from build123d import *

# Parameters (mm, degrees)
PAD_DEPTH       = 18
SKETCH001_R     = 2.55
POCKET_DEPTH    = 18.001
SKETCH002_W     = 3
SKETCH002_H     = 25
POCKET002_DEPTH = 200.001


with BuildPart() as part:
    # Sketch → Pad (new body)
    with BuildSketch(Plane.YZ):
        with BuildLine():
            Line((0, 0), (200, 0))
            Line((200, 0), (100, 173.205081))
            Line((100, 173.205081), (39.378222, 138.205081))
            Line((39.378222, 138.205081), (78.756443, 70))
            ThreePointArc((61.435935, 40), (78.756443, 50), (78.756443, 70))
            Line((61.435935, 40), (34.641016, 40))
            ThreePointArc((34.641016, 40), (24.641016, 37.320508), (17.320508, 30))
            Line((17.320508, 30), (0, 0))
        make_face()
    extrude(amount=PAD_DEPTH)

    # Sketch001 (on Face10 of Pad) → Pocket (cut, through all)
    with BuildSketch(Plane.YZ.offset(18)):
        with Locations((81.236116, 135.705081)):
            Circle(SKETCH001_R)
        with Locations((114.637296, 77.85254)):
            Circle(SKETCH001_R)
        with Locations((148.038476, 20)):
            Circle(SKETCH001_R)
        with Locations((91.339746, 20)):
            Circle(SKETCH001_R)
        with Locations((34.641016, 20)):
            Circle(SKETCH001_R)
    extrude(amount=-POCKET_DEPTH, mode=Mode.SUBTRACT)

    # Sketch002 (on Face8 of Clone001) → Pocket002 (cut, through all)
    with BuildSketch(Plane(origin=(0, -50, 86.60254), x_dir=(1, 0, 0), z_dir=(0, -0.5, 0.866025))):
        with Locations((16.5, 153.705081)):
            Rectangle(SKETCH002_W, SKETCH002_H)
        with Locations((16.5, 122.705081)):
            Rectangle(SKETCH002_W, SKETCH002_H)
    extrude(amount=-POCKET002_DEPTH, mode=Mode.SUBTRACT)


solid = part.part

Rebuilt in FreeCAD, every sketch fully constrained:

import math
import FreeCAD as App
import Part
import Sketcher
Q = App.Units.Quantity


def add_polygon(sketch, points):
    """Adds a closed chain of lines whose ends are joined by coincident constraints."""
    first, n = sketch.GeometryCount, len(points)
    for a, b in zip(points, points[1:] + points[:1]):
        sketch.addGeometry(Part.LineSegment(App.Vector(*a, 0), App.Vector(*b, 0)), False)
    for i in range(n):
        sketch.addConstraint(Sketcher.Constraint("Coincident", first + i, 2, first + (i + 1) % n, 1))

doc = App.newDocument("Part")
body = doc.addObject("PartDesign::Body", "Body")

# Sketch on YZ plane
sketch1 = doc.addObject("Sketcher::SketchObject", "Sketch")
body.addObject(sketch1)
sketch1.AttachmentSupport = (doc.YZ_Plane, [""])
sketch1.MapMode = "FlatFace"
sketch1.addGeometry(Part.LineSegment(App.Vector(0, 0, 0), App.Vector(200, 0, 0)), False)
sketch1.addGeometry(Part.LineSegment(App.Vector(200, 0, 0), App.Vector(100, 173.205081, 0)), False)
sketch1.addGeometry(Part.LineSegment(App.Vector(100, 173.205081, 0), App.Vector(39.378222, 138.205081, 0)), False)
sketch1.addGeometry(Part.LineSegment(App.Vector(39.378222, 138.205081, 0), App.Vector(78.756443, 70, 0)), False)
sketch1.addGeometry(Part.ArcOfCircle(Part.Circle(App.Vector(61.435935, 60, 0), App.Vector(0, 0, 1), 20), math.radians(-90), math.radians(30)), False)
sketch1.addGeometry(Part.LineSegment(App.Vector(61.435935, 40, 0), App.Vector(34.641016, 40, 0)), False)
sketch1.addGeometry(Part.ArcOfCircle(Part.Circle(App.Vector(34.641016, 20, 0), App.Vector(0, 0, 1), 20), math.radians(90.000001), math.radians(150)), False)
sketch1.addGeometry(Part.LineSegment(App.Vector(17.320508, 30, 0), App.Vector(0, 0, 0)), False)
sketch1.addConstraint(Sketcher.Constraint("Coincident", 0, 2, 1, 1))
sketch1.addConstraint(Sketcher.Constraint("Coincident", 1, 2, 2, 1))
sketch1.addConstraint(Sketcher.Constraint("Coincident", 2, 2, 3, 1))
sketch1.addConstraint(Sketcher.Constraint("Tangent", 3, 2, 4, 2))
sketch1.addConstraint(Sketcher.Constraint("Tangent", 4, 1, 5, 1))
sketch1.addConstraint(Sketcher.Constraint("Tangent", 5, 2, 6, 1))
sketch1.addConstraint(Sketcher.Constraint("Tangent", 6, 2, 7, 1))
sketch1.addConstraint(Sketcher.Constraint("Coincident", 7, 2, 0, 1))
sketch1.addConstraint(Sketcher.Constraint("Horizontal", 0))
sketch1.addConstraint(Sketcher.Constraint("Horizontal", 5))
sketch1.addConstraint(Sketcher.Constraint("Coincident", 7, 2, -1, 1))
sketch1.addConstraint(Sketcher.Constraint("Equal", 4, 6))
sketch1.addConstraint(Sketcher.Constraint("Perpendicular", 1, 2))
sketch1.addConstraint(Sketcher.Constraint("Perpendicular", 2, 3))
sketch1.addConstraint(Sketcher.Constraint("Radius", 4, 20.0))
sketch1.addConstraint(Sketcher.Constraint("DistanceX", 0, 1, 0, 2, 200.0))
sketch1.addConstraint(Sketcher.Constraint("Angle", 1, Q("120 deg")))
sketch1.addConstraint(Sketcher.Constraint("Angle", 7, Q("-120 deg")))
sketch1.addConstraint(Sketcher.Constraint("Distance", 1, 200.0))
sketch1.addConstraint(Sketcher.Constraint("Distance", 2, 70.0))
sketch1.addConstraint(Sketcher.Constraint("DistanceY", -1, 1, 4, 3, 60.0))
pad1 = doc.addObject("PartDesign::Pad", "Pad")
body.addObject(pad1)
pad1.Profile = sketch1
pad1.Length = 18

# Sketch on YZ plane
sketch2 = doc.addObject("Sketcher::SketchObject", "Sketch001")
body.addObject(sketch2)
sketch2.AttachmentSupport = (doc.YZ_Plane, [""])
sketch2.MapMode = "FlatFace"
sketch2.AttachmentOffset = App.Placement(App.Vector(0, 0, 18), App.Rotation())
sketch2.addGeometry(Part.Circle(App.Vector(81.236116, 135.705081, 0), App.Vector(0, 0, 1), 2.55), False)
sketch2.addGeometry(Part.Circle(App.Vector(114.637296, 77.85254, 0), App.Vector(0, 0, 1), 2.55), False)
sketch2.addGeometry(Part.Circle(App.Vector(148.038476, 20, 0), App.Vector(0, 0, 1), 2.55), False)
sketch2.addGeometry(Part.Circle(App.Vector(91.339746, 20, 0), App.Vector(0, 0, 1), 2.55), False)
sketch2.addGeometry(Part.Circle(App.Vector(34.641016, 20, 0), App.Vector(0, 0, 1), 2.55), False)
sketch2.addConstraint(Sketcher.Constraint("Equal", 0, 1))
sketch2.addConstraint(Sketcher.Constraint("Equal", 1, 2))
sketch2.addConstraint(Sketcher.Constraint("Equal", 2, 3))
sketch2.addConstraint(Sketcher.Constraint("Equal", 3, 4))
sketch2.addConstraint(Sketcher.Constraint("Horizontal", 2, 3, 3, 3))
sketch2.addConstraint(Sketcher.Constraint("Horizontal", 3, 3, 4, 3))
sketch2.addConstraint(Sketcher.Constraint("Diameter", 0, 5.1))
sketch2.addConstraint(Sketcher.Constraint("DistanceY", -1, 1, 2, 3, 20.0))
sketch2.addConstraint(Sketcher.Constraint("DistanceX", 4, 3, 0, 3, 46.5951))
sketch2.addConstraint(Sketcher.Constraint("DistanceY", -1, 1, 0, 3, 135.705081))
sketch2.addConstraint(Sketcher.Constraint("DistanceY", -1, 1, 1, 3, 77.85254))
sketch2.addConstraint(Sketcher.Constraint("DistanceX", 0, 3, 1, 3, 33.40118))
sketch2.addConstraint(Sketcher.Constraint("DistanceX", 1, 3, 2, 3, 33.40118))
sketch2.addConstraint(Sketcher.Constraint("DistanceX", 3, 3, 2, 3, 56.69873))
sketch2.addConstraint(Sketcher.Constraint("DistanceX", -1, 1, 0, 3, 81.236116))
pocket1 = doc.addObject("PartDesign::Pocket", "Pocket")
body.addObject(pocket1)
pocket1.Profile = sketch2
pocket1.Type = "ThroughAll"

# Sketch on an angled plane
sketch3 = doc.addObject("Sketcher::SketchObject", "Sketch002")
body.addObject(sketch3)
sketch3.Placement = App.Placement(App.Vector(0, -50, 86.60254), App.Rotation(App.Vector(1, 0, 0), App.Vector(0, 0.866025303, 0.500000175), App.Vector(0, -0.500000175, 0.866025303), "ZXY"))
add_polygon(sketch3, [(15, 166.205081), (15, 141.205081), (18, 141.205081), (18, 166.205081)])  # lines 0-3
add_polygon(sketch3, [(15, 135.205081), (15, 110.205081), (18, 110.205081), (18, 135.205081)])  # lines 4-7
sketch3.addConstraint(Sketcher.Constraint("Vertical", 0))
sketch3.addConstraint(Sketcher.Constraint("Horizontal", 1))
sketch3.addConstraint(Sketcher.Constraint("Vertical", 2))
sketch3.addConstraint(Sketcher.Constraint("Horizontal", 3))
sketch3.addConstraint(Sketcher.Constraint("Vertical", 4))
sketch3.addConstraint(Sketcher.Constraint("Horizontal", 5))
sketch3.addConstraint(Sketcher.Constraint("Vertical", 6))
sketch3.addConstraint(Sketcher.Constraint("Horizontal", 7))
sketch3.addConstraint(Sketcher.Constraint("Vertical", 3, 2, 4, 2))
sketch3.addConstraint(Sketcher.Constraint("Vertical", 2, 2, 5, 2))
sketch3.addConstraint(Sketcher.Constraint("Equal", 2, 4))
sketch3.addConstraint(Sketcher.Constraint("DistanceX", 1, 1, 1, 2, 3.0))
sketch3.addConstraint(Sketcher.Constraint("DistanceY", 0, 2, 0, 1, 25.0))
sketch3.addConstraint(Sketcher.Constraint("DistanceX", -1, 1, 0, 2, 15.0))
sketch3.addConstraint(Sketcher.Constraint("DistanceY", 4, 2, 0, 2, 31.0))
sketch3.addConstraint(Sketcher.Constraint("DistanceY", -1, 1, 0, 2, 141.205081))
pocket2 = doc.addObject("PartDesign::Pocket", "Pocket001")
body.addObject(pocket2)
pocket2.Profile = sketch3
pocket2.Type = "ThroughAll"

doc.recompute()
